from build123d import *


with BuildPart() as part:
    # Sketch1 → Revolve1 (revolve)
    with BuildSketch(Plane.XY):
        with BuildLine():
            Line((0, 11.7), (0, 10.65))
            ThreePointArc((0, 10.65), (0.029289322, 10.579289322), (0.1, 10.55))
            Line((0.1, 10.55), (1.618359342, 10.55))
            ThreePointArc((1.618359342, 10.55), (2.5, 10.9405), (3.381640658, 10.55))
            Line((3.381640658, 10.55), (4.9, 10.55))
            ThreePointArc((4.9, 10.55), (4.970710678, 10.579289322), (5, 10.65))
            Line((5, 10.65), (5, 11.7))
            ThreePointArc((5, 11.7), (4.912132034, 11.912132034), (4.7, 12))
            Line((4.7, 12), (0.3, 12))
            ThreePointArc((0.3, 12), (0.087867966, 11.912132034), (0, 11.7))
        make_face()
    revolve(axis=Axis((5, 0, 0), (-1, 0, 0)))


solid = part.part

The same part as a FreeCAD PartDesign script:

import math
import FreeCAD as App
import Part
import Sketcher

V = App.Vector

doc = App.newDocument("Part")
params = doc.addObject("Spreadsheet::Sheet", "Params")
for row, (alias, value) in enumerate([
    ("sketch1_radius", "0.1 mm"),
    ("sketch1_radius2", "0.3 mm"),
    ("sketch1_width", "4.4 mm"),
    ("sketch1_height", "1.05 mm"),
    ("revolution_angle", "360 deg"),
], start=1):
    params.set(f"A{row}", alias)
    params.set(f"B{row}", "=" + value)
    params.setAlias(f"B{row}", alias)

body = doc.addObject("PartDesign::Body", "Body")

sketch1 = body.newObject("Sketcher::SketchObject", "Sketch")
sketch1.AttachmentSupport = (doc.getObject("XY_Plane"), [""])
sketch1.MapMode = "FlatFace"
sketch1.addGeometry(Part.LineSegment(V(0, 11.7, 0), V(0, 10.65, 0)), False)
sketch1.addGeometry(Part.ArcOfCircle(Part.Circle(V(0.1, 10.65, 0), V(0, 0, 1), 0.1), math.radians(180), math.radians(270)), False)
sketch1.addGeometry(Part.LineSegment(V(0.1, 10.55, 0), V(1.62, 10.55, 0)), False)
sketch1.addGeometry(Part.ArcOfCircle(Part.Circle(V(2.5, 9.75, 0), V(0, 0, 1), 1.19), math.radians(42), math.radians(138)), False)
sketch1.addGeometry(Part.LineSegment(V(3.38, 10.55, 0), V(4.9, 10.55, 0)), False)
sketch1.addGeometry(Part.ArcOfCircle(Part.Circle(V(4.9, 10.65, 0), V(0, 0, 1), 0.1), math.radians(-90), math.radians(0)), False)
sketch1.addGeometry(Part.LineSegment(V(5, 10.65, 0), V(5, 11.7, 0)), False)
sketch1.addGeometry(Part.ArcOfCircle(Part.Circle(V(4.7, 11.7, 0), V(0, 0, 1), 0.3), math.radians(0), math.radians(90)), False)
sketch1.addGeometry(Part.LineSegment(V(4.7, 12, 0), V(0.3, 12, 0)), False)
sketch1.addGeometry(Part.ArcOfCircle(Part.Circle(V(0.3, 11.7, 0), V(0, 0, 1), 0.3), math.radians(90), math.radians(180)), False)
sketch1.addConstraint(Sketcher.Constraint("Tangent", 0, 2, 1, 1))
sketch1.addConstraint(Sketcher.Constraint("Tangent", 1, 2, 2, 1))
sketch1.addConstraint(Sketcher.Constraint("Coincident", 2, 2, 3, 2))
sketch1.addConstraint(Sketcher.Constraint("Coincident", 3, 1, 4, 1))
sketch1.addConstraint(Sketcher.Constraint("Tangent", 4, 2, 5, 1))
sketch1.addConstraint(Sketcher.Constraint("Tangent", 5, 2, 6, 1))
sketch1.addConstraint(Sketcher.Constraint("Tangent", 6, 2, 7, 1))
sketch1.addConstraint(Sketcher.Constraint("Tangent", 7, 2, 8, 1))
sketch1.addConstraint(Sketcher.Constraint("Tangent", 8, 2, 9, 1))
sketch1.addConstraint(Sketcher.Constraint("Tangent", 9, 2, 0, 1))
sketch1.addConstraint(Sketcher.Constraint("Vertical", 0))
sketch1.addConstraint(Sketcher.Constraint("Horizontal", 2))
sketch1.addConstraint(Sketcher.Constraint("Horizontal", 4))
sketch1.addConstraint(Sketcher.Constraint("Vertical", 6))
sketch1.addConstraint(Sketcher.Constraint("Horizontal", 8))
sketch1.addConstraint(Sketcher.Constraint("Equal", 1, 5))
sketch1.addConstraint(Sketcher.Constraint("Equal", 7, 9))
sketch1.addConstraint(Sketcher.Constraint("PointOnObject", 0, 2, -2))
sketch1.addConstraint(Sketcher.Constraint("Horizontal", 1, 3, 5, 3))
sketch1.addConstraint(Sketcher.Constraint("Equal", 2, 4))
sketch1.addConstraint(Sketcher.Constraint("Radius", 1, 0.1))
sketch1.addConstraint(Sketcher.Constraint("Radius", 7, 0.3))
sketch1.addConstraint(Sketcher.Constraint("DistanceX", 8, 2, 8, 1, 4.4))
sketch1.addConstraint(Sketcher.Constraint("DistanceY", -1, 1, 7, 2, 12.0))
sketch1.addConstraint(Sketcher.Constraint("DistanceY", 0, 2, 0, 1, 1.05))
sketch1.addConstraint(Sketcher.Constraint("Radius", 3, 1.1905))
sketch1.addConstraint(Sketcher.Constraint("DistanceY", 3, 3, 1, 3, 0.9))
sketch1.setExpression("Constraints[20]", "Params.sketch1_radius")
sketch1.setExpression("Constraints[21]", "Params.sketch1_radius2")
sketch1.setExpression("Constraints[22]", "Params.sketch1_width")
sketch1.setExpression("Constraints[24]", "Params.sketch1_height")
revolution = body.newObject("PartDesign::Revolution", "Revolution")
revolution.Profile = sketch1
revolution.ReferenceAxis = (sketch1, ["H_Axis"])
revolution.setExpression("Angle", "Params.revolution_angle")

doc.recompute()
